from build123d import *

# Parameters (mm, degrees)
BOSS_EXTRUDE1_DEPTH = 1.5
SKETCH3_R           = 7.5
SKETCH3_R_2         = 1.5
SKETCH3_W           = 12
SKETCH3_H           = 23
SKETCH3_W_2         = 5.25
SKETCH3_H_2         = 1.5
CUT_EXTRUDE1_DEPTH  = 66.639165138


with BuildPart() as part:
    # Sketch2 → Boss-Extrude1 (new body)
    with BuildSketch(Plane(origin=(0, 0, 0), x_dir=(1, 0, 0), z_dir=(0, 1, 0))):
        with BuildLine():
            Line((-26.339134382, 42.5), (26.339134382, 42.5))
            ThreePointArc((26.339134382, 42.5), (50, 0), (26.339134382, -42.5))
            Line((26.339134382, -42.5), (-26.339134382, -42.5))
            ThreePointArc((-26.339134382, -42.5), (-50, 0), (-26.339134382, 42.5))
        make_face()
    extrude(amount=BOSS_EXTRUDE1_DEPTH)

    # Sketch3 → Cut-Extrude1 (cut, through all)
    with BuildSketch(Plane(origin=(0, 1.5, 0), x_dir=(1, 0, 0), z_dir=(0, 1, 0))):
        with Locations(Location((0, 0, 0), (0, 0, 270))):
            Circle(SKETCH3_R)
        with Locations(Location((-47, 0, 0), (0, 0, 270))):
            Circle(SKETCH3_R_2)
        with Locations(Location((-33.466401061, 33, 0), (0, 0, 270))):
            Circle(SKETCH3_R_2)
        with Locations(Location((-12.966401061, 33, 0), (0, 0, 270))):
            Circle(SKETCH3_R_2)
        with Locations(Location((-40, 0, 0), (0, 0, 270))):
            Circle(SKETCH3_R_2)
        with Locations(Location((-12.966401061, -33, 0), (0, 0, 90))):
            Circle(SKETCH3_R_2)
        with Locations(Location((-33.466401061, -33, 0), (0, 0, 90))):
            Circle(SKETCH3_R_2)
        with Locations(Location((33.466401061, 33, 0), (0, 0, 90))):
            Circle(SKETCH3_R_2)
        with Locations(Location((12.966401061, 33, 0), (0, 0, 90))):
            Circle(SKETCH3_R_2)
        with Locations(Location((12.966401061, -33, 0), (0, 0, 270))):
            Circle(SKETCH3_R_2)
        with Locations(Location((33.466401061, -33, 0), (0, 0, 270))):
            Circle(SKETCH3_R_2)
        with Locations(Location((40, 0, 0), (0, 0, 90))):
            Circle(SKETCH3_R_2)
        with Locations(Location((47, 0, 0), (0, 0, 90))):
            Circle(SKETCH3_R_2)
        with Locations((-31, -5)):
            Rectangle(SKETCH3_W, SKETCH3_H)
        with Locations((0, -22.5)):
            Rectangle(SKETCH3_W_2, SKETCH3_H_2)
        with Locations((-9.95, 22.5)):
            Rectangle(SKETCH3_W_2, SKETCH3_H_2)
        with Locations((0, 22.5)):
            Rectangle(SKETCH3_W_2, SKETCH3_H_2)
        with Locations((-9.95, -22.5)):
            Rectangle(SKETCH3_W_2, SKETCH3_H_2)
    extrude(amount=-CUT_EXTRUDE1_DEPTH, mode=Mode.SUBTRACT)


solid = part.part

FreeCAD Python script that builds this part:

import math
import FreeCAD as App
import Part
import Sketcher

V = App.Vector
Q = App.Units.Quantity

doc = App.newDocument("Part")
body = doc.addObject("PartDesign::Body", "Body")

# Sketch on XZ plane
sketch1 = body.newObject("Sketcher::SketchObject", "Sketch")
sketch1.AttachmentSupport = (doc.getObject("XZ_Plane"), [""])
sketch1.MapMode = "FlatFace"
sketch1.addGeometry([
    Part.LineSegment(V(26, -42, 0), V(-26, -42, 0)),
    Part.ArcOfCircle(Part.Circle(V(0, 0, 0), V(0, 0, 1), 50), math.radians(122), math.radians(238)),
    Part.LineSegment(V(-26, 42, 0), V(26, 42, 0)),
    Part.ArcOfCircle(Part.Circle(V(0, 0, 0), V(0, 0, 1), 50), math.radians(-58), math.radians(58)),
], False)
sketch1.addConstraint([
    Sketcher.Constraint("Coincident", 0, 2, 1, 2),
    Sketcher.Constraint("Coincident", 1, 1, 2, 1),
    Sketcher.Constraint("Coincident", 2, 2, 3, 2),
    Sketcher.Constraint("Coincident", 3, 1, 0, 1),
    Sketcher.Constraint("Horizontal", 0),
    Sketcher.Constraint("Horizontal", 2),
    Sketcher.Constraint("Coincident", 1, 3, -1, 1),
    Sketcher.Constraint("Coincident", 3, 3, -1, 1),
    Sketcher.Constraint("Equal", 1, 3),
    Sketcher.Constraint("Vertical", 0, 2, 1, 1),
    Sketcher.Constraint("Radius", 1, Q("50 mm")),
    Sketcher.Constraint("DistanceY", 0, 2, 1, 1, Q("85 mm")),
])
pad1 = body.newObject("PartDesign::Pad", "Pad")
pad1.Profile = sketch1
pad1.Length = 1.5
pad1.Reversed = True

# Sketch on XZ plane
sketch2 = body.newObject("Sketcher::SketchObject", "Sketch001")
sketch2.AttachmentSupport = (doc.getObject("XZ_Plane"), [""])
sketch2.MapMode = "FlatFace"
sketch2.AttachmentOffset = App.Placement(V(0, 0, -1.5), App.Rotation())
sketch2.addGeometry([
    Part.Circle(V(0, 0, 0), V(0, 0, 1), 7.5),  # 0
    Part.Circle(V(-47, 0, 0), V(0, 0, 1), 1.5),  # 1
    Part.Circle(V(-33.5, -33, 0), V(0, 0, 1), 1.5),  # 2
    Part.Circle(V(-13, -33, 0), V(0, 0, 1), 1.5),  # 3
    Part.Circle(V(-40, 0, 0), V(0, 0, 1), 1.5),  # 4
    Part.Circle(V(-13, 33, 0), V(0, 0, 1), 1.5),  # 5
    Part.Circle(V(-33.5, 33, 0), V(0, 0, 1), 1.5),  # 6
    Part.Circle(V(33.5, -33, 0), V(0, 0, 1), 1.5),  # 7
    Part.Circle(V(13, -33, 0), V(0, 0, 1), 1.5),  # 8
    Part.Circle(V(13, 33, 0), V(0, 0, 1), 1.5),  # 9
    Part.Circle(V(33.5, 33, 0), V(0, 0, 1), 1.5),  # 10
    Part.Circle(V(40, 0, 0), V(0, 0, 1), 1.5),  # 11
    Part.Circle(V(47, 0, 0), V(0, 0, 1), 1.5),  # 12
    Part.LineSegment(V(-37, -6.5, 0), V(-37, 16.5, 0)),  # 13
    Part.LineSegment(V(-37, 16.5, 0), V(-25, 16.5, 0)),  # 14
    Part.LineSegment(V(-25, 16.5, 0), V(-25, -6.5, 0)),  # 15
    Part.LineSegment(V(-25, -6.5, 0), V(-37, -6.5, 0)),  # 16
    Part.LineSegment(V(-2.6, 21.8, 0), V(-2.6, 23.2, 0)),  # 17
    Part.LineSegment(V(-2.6, 23.2, 0), V(2.6, 23.2, 0)),  # 18
    Part.LineSegment(V(2.6, 23.2, 0), V(2.6, 21.8, 0)),  # 19
    Part.LineSegment(V(2.6, 21.8, 0), V(-2.6, 21.8, 0)),  # 20
    Part.LineSegment(V(-12.6, -23.2, 0), V(-12.6, -21.8, 0)),  # 21
    Part.LineSegment(V(-12.6, -21.8, 0), V(-7.3, -21.8, 0)),  # 22
    Part.LineSegment(V(-7.3, -21.8, 0), V(-7.3, -23.2, 0)),  # 23
    Part.LineSegment(V(-7.3, -23.2, 0), V(-12.6, -23.2, 0)),  # 24
    Part.LineSegment(V(-2.6, -23.2, 0), V(-2.6, -21.8, 0)),  # 25
    Part.LineSegment(V(-2.6, -21.8, 0), V(2.6, -21.8, 0)),  # 26
    Part.LineSegment(V(2.6, -21.8, 0), V(2.6, -23.2, 0)),  # 27
    Part.LineSegment(V(2.6, -23.2, 0), V(-2.6, -23.2, 0)),  # 28
    Part.LineSegment(V(-12.6, 21.8, 0), V(-12.6, 23.2, 0)),  # 29
    Part.LineSegment(V(-12.6, 23.2, 0), V(-7.3, 23.2, 0)),  # 30
    Part.LineSegment(V(-7.3, 23.2, 0), V(-7.3, 21.8, 0)),  # 31
    Part.LineSegment(V(-7.3, 21.8, 0), V(-12.6, 21.8, 0)),  # 32
], False)
sketch2.addConstraint([
    Sketcher.Constraint("Coincident", 13, 2, 14, 1),
    Sketcher.Constraint("Coincident", 14, 2, 15, 1),
    Sketcher.Constraint("Coincident", 15, 2, 16, 1),
    Sketcher.Constraint("Coincident", 16, 2, 13, 1),
    Sketcher.Constraint("Coincident", 17, 2, 18, 1),
    Sketcher.Constraint("Coincident", 18, 2, 19, 1),
    Sketcher.Constraint("Coincident", 19, 2, 20, 1),
    Sketcher.Constraint("Coincident", 20, 2, 17, 1),
    Sketcher.Constraint("Coincident", 21, 2, 22, 1),
    Sketcher.Constraint("Coincident", 22, 2, 23, 1),
    Sketcher.Constraint("Coincident", 23, 2, 24, 1),
    Sketcher.Constraint("Coincident", 24, 2, 21, 1),
    Sketcher.Constraint("Coincident", 25, 2, 26, 1),
    Sketcher.Constraint("Coincident", 26, 2, 27, 1),
    Sketcher.Constraint("Coincident", 27, 2, 28, 1),
    Sketcher.Constraint("Coincident", 28, 2, 25, 1),
    Sketcher.Constraint("Coincident", 29, 2, 30, 1),
    Sketcher.Constraint("Coincident", 30, 2, 31, 1),
    Sketcher.Constraint("Coincident", 31, 2, 32, 1),
    Sketcher.Constraint("Coincident", 32, 2, 29, 1),
    Sketcher.Constraint("Vertical", 13),
    Sketcher.Constraint("Horizontal", 14),
    Sketcher.Constraint("Vertical", 15),
    Sketcher.Constraint("Horizontal", 16),
    Sketcher.Constraint("Vertical", 17),
    Sketcher.Constraint("Horizontal", 18),
    Sketcher.Constraint("Vertical", 19),
    Sketcher.Constraint("Horizontal", 20),
    Sketcher.Constraint("Vertical", 21),
    Sketcher.Constraint("Horizontal", 22),
    Sketcher.Constraint("Vertical", 23),
    Sketcher.Constraint("Horizontal", 24),
    Sketcher.Constraint("Vertical", 25),
    Sketcher.Constraint("Horizontal", 26),
    Sketcher.Constraint("Vertical", 27),
    Sketcher.Constraint("Horizontal", 28),
    Sketcher.Constraint("Vertical", 29),
    Sketcher.Constraint("Horizontal", 30),
    Sketcher.Constraint("Vertical", 31),
    Sketcher.Constraint("Horizontal", 32),
    Sketcher.Constraint("Coincident", 0, 3, -1, 1),
    Sketcher.Constraint("Equal", 1, 2),
    Sketcher.Constraint("Equal", 2, 3),
    Sketcher.Constraint("Equal", 3, 4),
    Sketcher.Constraint("Equal", 4, 5),
    Sketcher.Constraint("Equal", 5, 6),
    Sketcher.Constraint("Equal", 6, 7),
    Sketcher.Constraint("Equal", 7, 8),
    Sketcher.Constraint("Equal", 8, 9),
    Sketcher.Constraint("Equal", 9, 10),
    Sketcher.Constraint("Equal", 10, 11),
    Sketcher.Constraint("Equal", 11, 12),
    Sketcher.Constraint("Symmetric", 6, 3, 7, 3, -1, 1),
    Sketcher.Constraint("Symmetric", 5, 3, 8, 3, -1, 1),
    Sketcher.Constraint("Symmetric", 3, 3, 9, 3, -1, 1),
    Sketcher.Constraint("Symmetric", 2, 3, 10, 3, -1, 1),
    Sketcher.Constraint("Symmetric", 4, 3, 11, 3, -1, 1),
    Sketcher.Constraint("Symmetric", 1, 3, 12, 3, -1, 1),
    Sketcher.Constraint("Symmetric", 19, 2, 25, 2, -1, 1),
    Sketcher.Constraint("Symmetric", 17, 2, 27, 2, -1, 1),
    Sketcher.Constraint("Symmetric", 2, 3, 7, 3, -2),
    Sketcher.Constraint("Symmetric", 3, 3, 8, 3, -2),
    Sketcher.Constraint("Symmetric", 24, 2, 29, 2, -1),
    Sketcher.Constraint("Symmetric", 22, 2, 31, 2, -1),
    Sketcher.Constraint("PointOnObject", 1, 3, -1),
    Sketcher.Constraint("PointOnObject", 4, 3, -1),
    Sketcher.Constraint("Horizontal", 2, 3, 3, 3),
    Sketcher.Constraint("Horizontal", 22, 2, 25, 2),
    Sketcher.Constraint("Horizontal", 24, 2, 27, 2),
    Sketcher.Constraint("Vertical", 20, 2, 25, 2),
    Sketcher.Constraint("Equal", 20, 22),
    Sketcher.Constraint("Diameter", 0, Q("15 mm")),
    Sketcher.Constraint("Diameter", 1, Q("3 mm")),
    Sketcher.Constraint("DistanceX", 14, 1, 14, 2, Q("12 mm")),
    Sketcher.Constraint("DistanceY", 13, 1, 13, 2, Q("23 mm")),
    Sketcher.Constraint("DistanceY", 17, 1, 17, 2, Q("1.5 mm")),
    Sketcher.Constraint("DistanceX", 1, 3, -1, 1, Q("47 mm")),
    Sketcher.Constraint("DistanceY", 2, 3, -1, 1, Q("33 mm")),
    Sketcher.Constraint("DistanceX", 4, 3, -1, 1, Q("40 mm")),
    Sketcher.Constraint("DistanceX", 13, 2, -1, 1, Q("37 mm")),
    Sketcher.Constraint("DistanceX", 18, 1, 18, 2, Q("5.25 mm")),
    Sketcher.Constraint("DistanceY", -1, 1, 13, 2, Q("16.5 mm")),
    Sketcher.Constraint("DistanceX", 2, 3, 3, 3, Q("20.5 mm")),
    Sketcher.Constraint("DistanceX", 22, 2, 25, 2, Q("4.7 mm")),
    Sketcher.Constraint("DistanceY", -1, 1, 17, 2, Q("23.25 mm")),
    Sketcher.Constraint("DistanceX", 2, 3, -1, 1, Q("33.466401 mm")),
])
pocket1 = body.newObject("PartDesign::Pocket", "Pocket")
pocket1.Profile = sketch2
pocket1.Type = "ThroughAll"
pocket1.Reversed = True

doc.recompute()
